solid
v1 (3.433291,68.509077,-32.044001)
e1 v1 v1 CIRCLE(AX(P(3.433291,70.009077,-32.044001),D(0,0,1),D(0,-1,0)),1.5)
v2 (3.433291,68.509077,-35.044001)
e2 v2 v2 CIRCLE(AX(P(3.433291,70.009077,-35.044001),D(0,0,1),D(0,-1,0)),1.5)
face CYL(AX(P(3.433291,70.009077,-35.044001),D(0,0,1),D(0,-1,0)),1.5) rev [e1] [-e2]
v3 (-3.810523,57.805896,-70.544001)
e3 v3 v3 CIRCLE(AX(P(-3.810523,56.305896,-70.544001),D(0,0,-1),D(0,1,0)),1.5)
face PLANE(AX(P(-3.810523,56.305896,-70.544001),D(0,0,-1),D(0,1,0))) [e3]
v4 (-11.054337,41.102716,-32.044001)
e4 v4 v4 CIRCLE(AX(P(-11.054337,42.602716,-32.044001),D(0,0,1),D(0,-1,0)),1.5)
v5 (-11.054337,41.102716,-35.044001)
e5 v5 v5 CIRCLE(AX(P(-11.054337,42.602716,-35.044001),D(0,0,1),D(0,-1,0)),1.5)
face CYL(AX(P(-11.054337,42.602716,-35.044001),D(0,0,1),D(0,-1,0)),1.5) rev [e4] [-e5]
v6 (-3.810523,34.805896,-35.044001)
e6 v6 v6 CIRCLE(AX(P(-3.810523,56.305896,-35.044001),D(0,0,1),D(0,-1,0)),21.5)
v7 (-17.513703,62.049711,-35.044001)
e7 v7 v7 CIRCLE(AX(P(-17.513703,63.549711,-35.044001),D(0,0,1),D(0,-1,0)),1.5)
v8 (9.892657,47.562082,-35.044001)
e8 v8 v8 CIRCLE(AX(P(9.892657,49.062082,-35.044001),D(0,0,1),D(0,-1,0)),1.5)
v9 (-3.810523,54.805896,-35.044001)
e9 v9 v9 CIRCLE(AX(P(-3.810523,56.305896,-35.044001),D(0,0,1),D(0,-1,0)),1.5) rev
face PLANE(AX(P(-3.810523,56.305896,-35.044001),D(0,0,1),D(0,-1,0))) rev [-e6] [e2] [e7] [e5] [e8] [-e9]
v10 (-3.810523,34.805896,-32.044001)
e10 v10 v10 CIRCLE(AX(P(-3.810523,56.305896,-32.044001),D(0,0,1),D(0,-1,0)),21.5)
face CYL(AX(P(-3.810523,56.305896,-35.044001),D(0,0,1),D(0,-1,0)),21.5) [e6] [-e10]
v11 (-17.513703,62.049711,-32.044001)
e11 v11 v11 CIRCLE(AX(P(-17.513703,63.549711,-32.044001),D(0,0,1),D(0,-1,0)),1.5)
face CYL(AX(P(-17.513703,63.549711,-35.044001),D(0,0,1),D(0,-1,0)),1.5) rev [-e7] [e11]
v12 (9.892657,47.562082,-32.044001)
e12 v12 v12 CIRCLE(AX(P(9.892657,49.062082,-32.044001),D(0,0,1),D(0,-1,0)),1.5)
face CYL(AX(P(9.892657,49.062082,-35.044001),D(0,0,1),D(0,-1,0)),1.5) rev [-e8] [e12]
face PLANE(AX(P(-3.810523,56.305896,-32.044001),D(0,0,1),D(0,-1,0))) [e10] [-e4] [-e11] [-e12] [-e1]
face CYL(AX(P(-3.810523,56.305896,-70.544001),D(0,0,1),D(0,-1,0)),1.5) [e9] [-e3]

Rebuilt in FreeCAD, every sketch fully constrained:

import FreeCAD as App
import Part
import Sketcher

V = App.Vector
Q = App.Units.Quantity

doc = App.newDocument("Part")
body = doc.addObject("PartDesign::Body", "Body")

# Sketch on XY plane
sketch1 = body.newObject("Sketcher::SketchObject", "Sketch")
sketch1.AttachmentSupport = (doc.getObject("XY_Plane"), [""])
sketch1.MapMode = "FlatFace"
sketch1.AttachmentOffset = App.Placement(V(0, 0, -32.044001), App.Rotation())
sketch1.addGeometry([
    Part.Circle(V(-3.810523, 56.305896, 0), V(0, 0, 1), 21.5),  # 0
    Part.Circle(V(-17.513703, 63.549711, 0), V(0, 0, 1), 1.5),  # 1
    Part.Circle(V(-11.054337, 42.602716, 0), V(0, 0, 1), 1.5),  # 2
    Part.Circle(V(3.433291, 70.009077, 0), V(0, 0, 1), 1.5),  # 3
    Part.Circle(V(9.892657, 49.062082, 0), V(0, 0, 1), 1.5),  # 4
], False)
sketch1.addConstraint([
    Sketcher.Constraint("Equal", 1, 2),
    Sketcher.Constraint("Equal", 2, 3),
    Sketcher.Constraint("Equal", 3, 4),
    Sketcher.Constraint("Diameter", 0, Q("43 mm")),
    Sketcher.Constraint("Diameter", 1, Q("3 mm")),
    Sketcher.Constraint("DistanceY", -1, 1, 1, 3, Q("63.549711 mm")),
    Sketcher.Constraint("DistanceX", -1, 1, 3, 3, Q("3.433291 mm")),
    Sketcher.Constraint("DistanceX", 1, 3, 0, 3, Q("13.70318 mm")),
    Sketcher.Constraint("DistanceY", 2, 3, 0, 3, Q("13.70318 mm")),
    Sketcher.Constraint("DistanceY", 0, 3, 3, 3, Q("13.70318 mm")),
    Sketcher.Constraint("DistanceX", 2, 3, 3, 3, Q("14.487629 mm")),
    Sketcher.Constraint("DistanceX", 0, 3, 4, 3, Q("13.70318 mm")),
    Sketcher.Constraint("DistanceY", 4, 3, 1, 3, Q("14.487629 mm")),
    Sketcher.Constraint("DistanceX", 0, 3, -1, 1, Q("3.810523 mm")),
    Sketcher.Constraint("DistanceY", -1, 1, 0, 3, Q("56.305896 mm")),
])
pad1 = body.newObject("PartDesign::Pad", "Pad")
pad1.Profile = sketch1
pad1.Length = 3
pad1.Reversed = True

# Sketch on XY plane
sketch2 = body.newObject("Sketcher::SketchObject", "Sketch001")
sketch2.AttachmentSupport = (doc.getObject("XY_Plane"), [""])
sketch2.MapMode = "FlatFace"
sketch2.AttachmentOffset = App.Placement(V(0, 0, -35.044001), App.Rotation())
sketch2.addGeometry(Part.Circle(V(-3.810523, 56.305896, 0), V(0, 0, 1), 1.5), False)
sketch2.addConstraint([
    Sketcher.Constraint("Diameter", 0, Q("3 mm")),
    Sketcher.Constraint("DistanceX", 0, 3, -1, 1, Q("3.810523 mm")),
    Sketcher.Constraint("DistanceY", -1, 1, 0, 3, Q("56.305896 mm")),
])
pad2 = body.newObject("PartDesign::Pad", "Pad001")
pad2.Profile = sketch2
pad2.Length = 35.5
pad2.Reversed = True

doc.recompute()
